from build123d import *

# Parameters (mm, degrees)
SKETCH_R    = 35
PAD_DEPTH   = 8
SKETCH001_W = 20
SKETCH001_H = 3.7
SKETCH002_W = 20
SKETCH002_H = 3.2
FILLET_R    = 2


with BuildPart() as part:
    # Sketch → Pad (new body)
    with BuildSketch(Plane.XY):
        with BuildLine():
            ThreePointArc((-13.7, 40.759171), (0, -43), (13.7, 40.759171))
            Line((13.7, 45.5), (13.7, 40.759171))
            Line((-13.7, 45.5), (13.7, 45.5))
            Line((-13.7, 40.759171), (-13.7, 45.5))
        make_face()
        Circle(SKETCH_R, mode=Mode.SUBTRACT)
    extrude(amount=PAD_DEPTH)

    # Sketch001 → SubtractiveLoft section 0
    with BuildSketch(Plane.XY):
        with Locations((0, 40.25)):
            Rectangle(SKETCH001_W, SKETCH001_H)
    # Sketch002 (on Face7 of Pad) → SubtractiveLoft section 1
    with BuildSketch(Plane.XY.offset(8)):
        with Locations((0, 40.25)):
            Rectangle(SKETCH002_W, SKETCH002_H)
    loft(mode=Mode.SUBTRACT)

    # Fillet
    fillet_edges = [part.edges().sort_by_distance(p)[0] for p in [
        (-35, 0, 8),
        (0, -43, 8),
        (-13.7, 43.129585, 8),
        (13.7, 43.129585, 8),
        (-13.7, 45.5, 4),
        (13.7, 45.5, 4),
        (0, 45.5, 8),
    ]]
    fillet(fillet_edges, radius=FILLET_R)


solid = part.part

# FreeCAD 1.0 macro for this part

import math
import FreeCAD as App
import Part
import Sketcher

V = App.Vector


def edges_at(feature, points):
    """Names of the edges that pass closest to the given points."""
    edges = feature.Shape.Edges
    near = lambda p: min(range(len(edges)), key=lambda i: edges[i].distToShape(Part.Vertex(*p))[0])
    return sorted({f"Edge{near(p) + 1}" for p in points})

doc = App.newDocument("Part")
body = doc.addObject("PartDesign::Body", "Body")

sketch1 = doc.addObject("Sketcher::SketchObject", "Sketch")
body.addObject(sketch1)
sketch1.AttachmentSupport = (doc.XY_Plane, [""])
sketch1.MapMode = "FlatFace"
sketch1.addGeometry([
    Part.ArcOfCircle(Part.Circle(V(0, 0, 0), V(0, 0, 1), 43), math.radians(109), math.radians(431)),
    Part.LineSegment(V(13.7, 40.8, 0), V(13.7, 45.5, 0)),
    Part.LineSegment(V(13.7, 45.5, 0), V(-13.7, 45.5, 0)),
    Part.LineSegment(V(-13.7, 45.5, 0), V(-13.7, 40.8, 0)),
    Part.Circle(V(0, 0, 0), V(0, 0, 1), 35),
], False)
sketch1.addConstraint([
    Sketcher.Constraint("Coincident", 0, 2, 1, 1),
    Sketcher.Constraint("Coincident", 1, 2, 2, 1),
    Sketcher.Constraint("Coincident", 2, 2, 3, 1),
    Sketcher.Constraint("Coincident", 3, 2, 0, 1),
    Sketcher.Constraint("Vertical", 1),
    Sketcher.Constraint("Horizontal", 2),
    Sketcher.Constraint("Vertical", 3),
    Sketcher.Constraint("Coincident", 0, 3, -1, 1),
    Sketcher.Constraint("Coincident", 4, 3, -1, 1),
    Sketcher.Constraint("Horizontal", 0, 2, 3, 2),
    Sketcher.Constraint("Diameter", 4, 70.0),
    Sketcher.Constraint("Radius", 0, 43.0),
    Sketcher.Constraint("DistanceX", 2, 2, 2, 1, 27.4),
    Sketcher.Constraint("DistanceY", -1, 1, 1, 2, 45.5),
])
pad1 = doc.addObject("PartDesign::Pad", "Pad")
body.addObject(pad1)
pad1.Profile = sketch1
pad1.Length = 8

sketch2 = doc.addObject("Sketcher::SketchObject", "Sketch001")
body.addObject(sketch2)
sketch2.AttachmentSupport = (doc.XY_Plane, [""])
sketch2.MapMode = "FlatFace"
sketch2.addGeometry([
    Part.LineSegment(V(-10, 42.1, 0), V(-10, 38.4, 0)),
    Part.LineSegment(V(-10, 38.4, 0), V(10, 38.4, 0)),
    Part.LineSegment(V(10, 38.4, 0), V(10, 42.1, 0)),
    Part.LineSegment(V(10, 42.1, 0), V(-10, 42.1, 0)),
], False)
sketch2.addConstraint([
    Sketcher.Constraint("Coincident", 0, 2, 1, 1),
    Sketcher.Constraint("Coincident", 1, 2, 2, 1),
    Sketcher.Constraint("Coincident", 2, 2, 3, 1),
    Sketcher.Constraint("Coincident", 3, 2, 0, 1),
    Sketcher.Constraint("Vertical", 0),
    Sketcher.Constraint("Horizontal", 1),
    Sketcher.Constraint("Vertical", 2),
    Sketcher.Constraint("Horizontal", 3),
    Sketcher.Constraint("DistanceX", 1, 1, 1, 2, 20.0),
    Sketcher.Constraint("DistanceY", 0, 2, 0, 1, 3.7),
    Sketcher.Constraint("DistanceX", 0, 2, -1, 1, 10.0),
    Sketcher.Constraint("DistanceY", -1, 1, 0, 2, 38.4),
])

sketch3 = doc.addObject("Sketcher::SketchObject", "Sketch002")
body.addObject(sketch3)
sketch3.AttachmentSupport = (doc.XY_Plane, [""])
sketch3.MapMode = "FlatFace"
sketch3.AttachmentOffset = App.Placement(V(0, 0, 8), App.Rotation())
sketch3.addGeometry([
    Part.LineSegment(V(-10, 41.9, 0), V(-10, 38.6, 0)),
    Part.LineSegment(V(-10, 38.6, 0), V(10, 38.6, 0)),
    Part.LineSegment(V(10, 38.6, 0), V(10, 41.9, 0)),
    Part.LineSegment(V(10, 41.9, 0), V(-10, 41.9, 0)),
], False)
sketch3.addConstraint([
    Sketcher.Constraint("Coincident", 0, 2, 1, 1),
    Sketcher.Constraint("Coincident", 1, 2, 2, 1),
    Sketcher.Constraint("Coincident", 2, 2, 3, 1),
    Sketcher.Constraint("Coincident", 3, 2, 0, 1),
    Sketcher.Constraint("Vertical", 0),
    Sketcher.Constraint("Horizontal", 1),
    Sketcher.Constraint("Vertical", 2),
    Sketcher.Constraint("Horizontal", 3),
    Sketcher.Constraint("DistanceX", 1, 1, 1, 2, 20.0),
    Sketcher.Constraint("DistanceY", 0, 2, 0, 1, 3.2),
    Sketcher.Constraint("DistanceX", 0, 2, -1, 1, 10.0),
    Sketcher.Constraint("DistanceY", -1, 1, 0, 2, 38.65),
])

subtractiveloft = doc.addObject("PartDesign::SubtractiveLoft", "SubtractiveLoft")
body.addObject(subtractiveloft)
subtractiveloft.Profile = sketch2
subtractiveloft.Sections = [sketch3]
doc.recompute()

fillet = doc.addObject("PartDesign::Fillet", "Fillet")
body.addObject(fillet)
fillet.Base = (subtractiveloft, edges_at(subtractiveloft, [
    (-35, 0, 8),
    (0, -43, 8),
    (-13.7, 43.13, 8),
    (13.7, 43.13, 8),
    (-13.7, 45.5, 4),
    (13.7, 45.5, 4),
    (0, 45.5, 8),
]))
fillet.Radius = 2

doc.recompute()
